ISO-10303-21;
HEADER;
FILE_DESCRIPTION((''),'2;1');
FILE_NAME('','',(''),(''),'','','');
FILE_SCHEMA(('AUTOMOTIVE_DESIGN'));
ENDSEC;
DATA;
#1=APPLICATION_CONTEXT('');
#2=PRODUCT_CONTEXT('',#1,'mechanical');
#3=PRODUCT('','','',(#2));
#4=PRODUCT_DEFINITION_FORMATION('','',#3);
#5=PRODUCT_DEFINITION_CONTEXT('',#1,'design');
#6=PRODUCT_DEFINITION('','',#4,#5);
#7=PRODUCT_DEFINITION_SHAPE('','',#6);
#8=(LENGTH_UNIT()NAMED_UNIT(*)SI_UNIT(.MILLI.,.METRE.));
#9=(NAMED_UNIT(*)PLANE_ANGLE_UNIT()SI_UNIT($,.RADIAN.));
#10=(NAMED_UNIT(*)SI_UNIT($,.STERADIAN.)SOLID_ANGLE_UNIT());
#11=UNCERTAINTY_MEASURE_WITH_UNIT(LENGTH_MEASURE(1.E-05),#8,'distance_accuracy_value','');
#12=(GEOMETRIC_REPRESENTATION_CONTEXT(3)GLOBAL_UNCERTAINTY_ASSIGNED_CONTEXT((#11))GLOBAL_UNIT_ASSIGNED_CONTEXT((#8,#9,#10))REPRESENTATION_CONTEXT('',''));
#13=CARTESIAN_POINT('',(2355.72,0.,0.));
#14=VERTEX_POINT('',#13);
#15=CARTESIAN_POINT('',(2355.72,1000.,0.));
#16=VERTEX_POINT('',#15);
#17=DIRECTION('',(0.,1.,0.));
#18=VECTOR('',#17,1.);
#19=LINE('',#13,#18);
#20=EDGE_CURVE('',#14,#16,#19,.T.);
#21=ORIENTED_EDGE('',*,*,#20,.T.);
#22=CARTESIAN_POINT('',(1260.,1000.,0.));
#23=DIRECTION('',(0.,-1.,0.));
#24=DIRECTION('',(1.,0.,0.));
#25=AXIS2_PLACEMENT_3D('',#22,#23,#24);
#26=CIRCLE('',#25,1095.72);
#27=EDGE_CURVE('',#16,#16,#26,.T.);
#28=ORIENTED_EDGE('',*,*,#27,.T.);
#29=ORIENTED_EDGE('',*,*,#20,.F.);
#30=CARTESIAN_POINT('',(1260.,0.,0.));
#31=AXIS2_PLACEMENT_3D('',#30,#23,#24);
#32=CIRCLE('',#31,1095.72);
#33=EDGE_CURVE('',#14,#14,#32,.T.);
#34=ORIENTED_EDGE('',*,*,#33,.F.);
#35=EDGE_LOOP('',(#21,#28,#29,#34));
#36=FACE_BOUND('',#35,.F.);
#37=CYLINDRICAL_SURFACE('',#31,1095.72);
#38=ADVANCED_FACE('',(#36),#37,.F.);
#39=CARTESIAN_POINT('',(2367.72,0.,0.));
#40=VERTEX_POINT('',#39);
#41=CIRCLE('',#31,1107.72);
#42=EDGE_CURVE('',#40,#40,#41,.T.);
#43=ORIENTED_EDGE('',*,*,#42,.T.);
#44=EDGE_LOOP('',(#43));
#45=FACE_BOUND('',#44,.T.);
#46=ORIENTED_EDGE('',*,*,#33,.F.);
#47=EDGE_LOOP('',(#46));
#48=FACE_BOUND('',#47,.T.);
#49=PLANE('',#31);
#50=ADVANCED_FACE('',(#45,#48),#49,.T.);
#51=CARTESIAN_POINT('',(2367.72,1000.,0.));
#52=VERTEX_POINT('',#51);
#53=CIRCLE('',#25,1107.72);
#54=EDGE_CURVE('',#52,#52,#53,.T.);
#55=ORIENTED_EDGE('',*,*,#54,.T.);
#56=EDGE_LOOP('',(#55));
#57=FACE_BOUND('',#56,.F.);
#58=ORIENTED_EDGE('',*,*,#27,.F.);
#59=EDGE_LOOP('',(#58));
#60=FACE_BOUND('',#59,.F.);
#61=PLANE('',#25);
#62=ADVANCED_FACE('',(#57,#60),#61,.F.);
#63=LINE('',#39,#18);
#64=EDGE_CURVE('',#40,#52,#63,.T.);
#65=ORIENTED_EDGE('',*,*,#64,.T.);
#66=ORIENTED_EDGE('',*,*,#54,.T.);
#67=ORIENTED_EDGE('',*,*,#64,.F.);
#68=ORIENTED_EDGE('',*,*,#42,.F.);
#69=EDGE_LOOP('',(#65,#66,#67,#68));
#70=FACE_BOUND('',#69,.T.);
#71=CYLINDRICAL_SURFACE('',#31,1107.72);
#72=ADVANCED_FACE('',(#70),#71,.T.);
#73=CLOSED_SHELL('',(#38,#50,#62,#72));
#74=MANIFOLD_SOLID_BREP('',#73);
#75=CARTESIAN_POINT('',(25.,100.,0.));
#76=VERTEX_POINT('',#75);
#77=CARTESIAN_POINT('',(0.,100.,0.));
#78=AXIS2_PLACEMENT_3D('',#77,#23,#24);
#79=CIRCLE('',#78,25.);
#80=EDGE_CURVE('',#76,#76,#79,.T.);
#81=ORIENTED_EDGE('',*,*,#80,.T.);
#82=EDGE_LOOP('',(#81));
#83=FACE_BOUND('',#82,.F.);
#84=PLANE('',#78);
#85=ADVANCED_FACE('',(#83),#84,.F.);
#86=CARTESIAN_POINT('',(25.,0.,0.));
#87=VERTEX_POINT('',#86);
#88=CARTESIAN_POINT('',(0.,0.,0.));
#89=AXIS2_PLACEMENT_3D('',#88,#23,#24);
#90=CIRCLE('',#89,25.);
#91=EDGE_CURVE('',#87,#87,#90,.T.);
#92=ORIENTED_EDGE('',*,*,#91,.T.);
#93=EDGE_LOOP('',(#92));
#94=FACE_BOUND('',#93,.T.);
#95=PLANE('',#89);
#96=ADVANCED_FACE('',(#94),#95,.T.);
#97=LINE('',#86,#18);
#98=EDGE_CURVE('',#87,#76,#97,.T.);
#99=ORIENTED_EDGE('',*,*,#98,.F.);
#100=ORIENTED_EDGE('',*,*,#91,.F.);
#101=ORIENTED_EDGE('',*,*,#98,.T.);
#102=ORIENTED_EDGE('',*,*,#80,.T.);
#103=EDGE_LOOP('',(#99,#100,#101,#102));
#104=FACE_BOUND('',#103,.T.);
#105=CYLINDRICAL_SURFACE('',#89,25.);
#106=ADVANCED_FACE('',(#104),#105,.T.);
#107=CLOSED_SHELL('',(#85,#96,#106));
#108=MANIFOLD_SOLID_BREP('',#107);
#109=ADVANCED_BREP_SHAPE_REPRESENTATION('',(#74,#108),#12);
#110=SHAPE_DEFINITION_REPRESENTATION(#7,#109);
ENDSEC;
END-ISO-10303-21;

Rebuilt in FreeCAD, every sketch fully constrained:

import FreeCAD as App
import Part
import Sketcher
from FreeCAD import Vector
Q = App.Units.Quantity

doc = App.newDocument("Part")
body = doc.addObject("PartDesign::Body", "Body")

sketch1 = body.newObject("Sketcher::SketchObject", "Sketch")
sketch1.AttachmentSupport = (doc.getObject("XZ_Plane"), [""])
sketch1.MapMode = "FlatFace"
sketch1.addGeometry(Part.Circle(Vector(0, 0, 0), Vector(0, 0, 1), 25), False)
sketch1.addConstraint([
    Sketcher.Constraint("Coincident", 0, 3, -1, 1),
    Sketcher.Constraint("Diameter", 0, Q("50 mm")),
])
pad1 = body.newObject("PartDesign::Pad", "Pad")
pad1.Profile = sketch1
pad1.Length = 100
pad1.Reversed = True
body2 = doc.addObject("PartDesign::Body", "Body001")

sketch2 = body2.newObject("Sketcher::SketchObject", "Sketch001")
sketch2.AttachmentSupport = (doc.getObject("XZ_Plane001"), [""])
sketch2.MapMode = "FlatFace"
sketch2.addGeometry([
    Part.Circle(Vector(1260, 0, 0), Vector(0, 0, 1), 1108),
    Part.Circle(Vector(1260, 0, 0), Vector(0, 0, 1), 1096),
], False)
sketch2.addConstraint([
    Sketcher.Constraint("Coincident", 1, 3, 0, 3),
    Sketcher.Constraint("PointOnObject", 0, 3, -1),
    Sketcher.Constraint("Diameter", 0, Q("2215.44 mm")),
    Sketcher.Constraint("Diameter", 1, Q("2191.44 mm")),
    Sketcher.Constraint("DistanceX", -1, 1, 0, 3, Q("1260 mm")),
])
pad2 = body2.newObject("PartDesign::Pad", "Pad001")
pad2.Profile = sketch2
pad2.Length = 1000
pad2.Reversed = True

doc.recompute()
